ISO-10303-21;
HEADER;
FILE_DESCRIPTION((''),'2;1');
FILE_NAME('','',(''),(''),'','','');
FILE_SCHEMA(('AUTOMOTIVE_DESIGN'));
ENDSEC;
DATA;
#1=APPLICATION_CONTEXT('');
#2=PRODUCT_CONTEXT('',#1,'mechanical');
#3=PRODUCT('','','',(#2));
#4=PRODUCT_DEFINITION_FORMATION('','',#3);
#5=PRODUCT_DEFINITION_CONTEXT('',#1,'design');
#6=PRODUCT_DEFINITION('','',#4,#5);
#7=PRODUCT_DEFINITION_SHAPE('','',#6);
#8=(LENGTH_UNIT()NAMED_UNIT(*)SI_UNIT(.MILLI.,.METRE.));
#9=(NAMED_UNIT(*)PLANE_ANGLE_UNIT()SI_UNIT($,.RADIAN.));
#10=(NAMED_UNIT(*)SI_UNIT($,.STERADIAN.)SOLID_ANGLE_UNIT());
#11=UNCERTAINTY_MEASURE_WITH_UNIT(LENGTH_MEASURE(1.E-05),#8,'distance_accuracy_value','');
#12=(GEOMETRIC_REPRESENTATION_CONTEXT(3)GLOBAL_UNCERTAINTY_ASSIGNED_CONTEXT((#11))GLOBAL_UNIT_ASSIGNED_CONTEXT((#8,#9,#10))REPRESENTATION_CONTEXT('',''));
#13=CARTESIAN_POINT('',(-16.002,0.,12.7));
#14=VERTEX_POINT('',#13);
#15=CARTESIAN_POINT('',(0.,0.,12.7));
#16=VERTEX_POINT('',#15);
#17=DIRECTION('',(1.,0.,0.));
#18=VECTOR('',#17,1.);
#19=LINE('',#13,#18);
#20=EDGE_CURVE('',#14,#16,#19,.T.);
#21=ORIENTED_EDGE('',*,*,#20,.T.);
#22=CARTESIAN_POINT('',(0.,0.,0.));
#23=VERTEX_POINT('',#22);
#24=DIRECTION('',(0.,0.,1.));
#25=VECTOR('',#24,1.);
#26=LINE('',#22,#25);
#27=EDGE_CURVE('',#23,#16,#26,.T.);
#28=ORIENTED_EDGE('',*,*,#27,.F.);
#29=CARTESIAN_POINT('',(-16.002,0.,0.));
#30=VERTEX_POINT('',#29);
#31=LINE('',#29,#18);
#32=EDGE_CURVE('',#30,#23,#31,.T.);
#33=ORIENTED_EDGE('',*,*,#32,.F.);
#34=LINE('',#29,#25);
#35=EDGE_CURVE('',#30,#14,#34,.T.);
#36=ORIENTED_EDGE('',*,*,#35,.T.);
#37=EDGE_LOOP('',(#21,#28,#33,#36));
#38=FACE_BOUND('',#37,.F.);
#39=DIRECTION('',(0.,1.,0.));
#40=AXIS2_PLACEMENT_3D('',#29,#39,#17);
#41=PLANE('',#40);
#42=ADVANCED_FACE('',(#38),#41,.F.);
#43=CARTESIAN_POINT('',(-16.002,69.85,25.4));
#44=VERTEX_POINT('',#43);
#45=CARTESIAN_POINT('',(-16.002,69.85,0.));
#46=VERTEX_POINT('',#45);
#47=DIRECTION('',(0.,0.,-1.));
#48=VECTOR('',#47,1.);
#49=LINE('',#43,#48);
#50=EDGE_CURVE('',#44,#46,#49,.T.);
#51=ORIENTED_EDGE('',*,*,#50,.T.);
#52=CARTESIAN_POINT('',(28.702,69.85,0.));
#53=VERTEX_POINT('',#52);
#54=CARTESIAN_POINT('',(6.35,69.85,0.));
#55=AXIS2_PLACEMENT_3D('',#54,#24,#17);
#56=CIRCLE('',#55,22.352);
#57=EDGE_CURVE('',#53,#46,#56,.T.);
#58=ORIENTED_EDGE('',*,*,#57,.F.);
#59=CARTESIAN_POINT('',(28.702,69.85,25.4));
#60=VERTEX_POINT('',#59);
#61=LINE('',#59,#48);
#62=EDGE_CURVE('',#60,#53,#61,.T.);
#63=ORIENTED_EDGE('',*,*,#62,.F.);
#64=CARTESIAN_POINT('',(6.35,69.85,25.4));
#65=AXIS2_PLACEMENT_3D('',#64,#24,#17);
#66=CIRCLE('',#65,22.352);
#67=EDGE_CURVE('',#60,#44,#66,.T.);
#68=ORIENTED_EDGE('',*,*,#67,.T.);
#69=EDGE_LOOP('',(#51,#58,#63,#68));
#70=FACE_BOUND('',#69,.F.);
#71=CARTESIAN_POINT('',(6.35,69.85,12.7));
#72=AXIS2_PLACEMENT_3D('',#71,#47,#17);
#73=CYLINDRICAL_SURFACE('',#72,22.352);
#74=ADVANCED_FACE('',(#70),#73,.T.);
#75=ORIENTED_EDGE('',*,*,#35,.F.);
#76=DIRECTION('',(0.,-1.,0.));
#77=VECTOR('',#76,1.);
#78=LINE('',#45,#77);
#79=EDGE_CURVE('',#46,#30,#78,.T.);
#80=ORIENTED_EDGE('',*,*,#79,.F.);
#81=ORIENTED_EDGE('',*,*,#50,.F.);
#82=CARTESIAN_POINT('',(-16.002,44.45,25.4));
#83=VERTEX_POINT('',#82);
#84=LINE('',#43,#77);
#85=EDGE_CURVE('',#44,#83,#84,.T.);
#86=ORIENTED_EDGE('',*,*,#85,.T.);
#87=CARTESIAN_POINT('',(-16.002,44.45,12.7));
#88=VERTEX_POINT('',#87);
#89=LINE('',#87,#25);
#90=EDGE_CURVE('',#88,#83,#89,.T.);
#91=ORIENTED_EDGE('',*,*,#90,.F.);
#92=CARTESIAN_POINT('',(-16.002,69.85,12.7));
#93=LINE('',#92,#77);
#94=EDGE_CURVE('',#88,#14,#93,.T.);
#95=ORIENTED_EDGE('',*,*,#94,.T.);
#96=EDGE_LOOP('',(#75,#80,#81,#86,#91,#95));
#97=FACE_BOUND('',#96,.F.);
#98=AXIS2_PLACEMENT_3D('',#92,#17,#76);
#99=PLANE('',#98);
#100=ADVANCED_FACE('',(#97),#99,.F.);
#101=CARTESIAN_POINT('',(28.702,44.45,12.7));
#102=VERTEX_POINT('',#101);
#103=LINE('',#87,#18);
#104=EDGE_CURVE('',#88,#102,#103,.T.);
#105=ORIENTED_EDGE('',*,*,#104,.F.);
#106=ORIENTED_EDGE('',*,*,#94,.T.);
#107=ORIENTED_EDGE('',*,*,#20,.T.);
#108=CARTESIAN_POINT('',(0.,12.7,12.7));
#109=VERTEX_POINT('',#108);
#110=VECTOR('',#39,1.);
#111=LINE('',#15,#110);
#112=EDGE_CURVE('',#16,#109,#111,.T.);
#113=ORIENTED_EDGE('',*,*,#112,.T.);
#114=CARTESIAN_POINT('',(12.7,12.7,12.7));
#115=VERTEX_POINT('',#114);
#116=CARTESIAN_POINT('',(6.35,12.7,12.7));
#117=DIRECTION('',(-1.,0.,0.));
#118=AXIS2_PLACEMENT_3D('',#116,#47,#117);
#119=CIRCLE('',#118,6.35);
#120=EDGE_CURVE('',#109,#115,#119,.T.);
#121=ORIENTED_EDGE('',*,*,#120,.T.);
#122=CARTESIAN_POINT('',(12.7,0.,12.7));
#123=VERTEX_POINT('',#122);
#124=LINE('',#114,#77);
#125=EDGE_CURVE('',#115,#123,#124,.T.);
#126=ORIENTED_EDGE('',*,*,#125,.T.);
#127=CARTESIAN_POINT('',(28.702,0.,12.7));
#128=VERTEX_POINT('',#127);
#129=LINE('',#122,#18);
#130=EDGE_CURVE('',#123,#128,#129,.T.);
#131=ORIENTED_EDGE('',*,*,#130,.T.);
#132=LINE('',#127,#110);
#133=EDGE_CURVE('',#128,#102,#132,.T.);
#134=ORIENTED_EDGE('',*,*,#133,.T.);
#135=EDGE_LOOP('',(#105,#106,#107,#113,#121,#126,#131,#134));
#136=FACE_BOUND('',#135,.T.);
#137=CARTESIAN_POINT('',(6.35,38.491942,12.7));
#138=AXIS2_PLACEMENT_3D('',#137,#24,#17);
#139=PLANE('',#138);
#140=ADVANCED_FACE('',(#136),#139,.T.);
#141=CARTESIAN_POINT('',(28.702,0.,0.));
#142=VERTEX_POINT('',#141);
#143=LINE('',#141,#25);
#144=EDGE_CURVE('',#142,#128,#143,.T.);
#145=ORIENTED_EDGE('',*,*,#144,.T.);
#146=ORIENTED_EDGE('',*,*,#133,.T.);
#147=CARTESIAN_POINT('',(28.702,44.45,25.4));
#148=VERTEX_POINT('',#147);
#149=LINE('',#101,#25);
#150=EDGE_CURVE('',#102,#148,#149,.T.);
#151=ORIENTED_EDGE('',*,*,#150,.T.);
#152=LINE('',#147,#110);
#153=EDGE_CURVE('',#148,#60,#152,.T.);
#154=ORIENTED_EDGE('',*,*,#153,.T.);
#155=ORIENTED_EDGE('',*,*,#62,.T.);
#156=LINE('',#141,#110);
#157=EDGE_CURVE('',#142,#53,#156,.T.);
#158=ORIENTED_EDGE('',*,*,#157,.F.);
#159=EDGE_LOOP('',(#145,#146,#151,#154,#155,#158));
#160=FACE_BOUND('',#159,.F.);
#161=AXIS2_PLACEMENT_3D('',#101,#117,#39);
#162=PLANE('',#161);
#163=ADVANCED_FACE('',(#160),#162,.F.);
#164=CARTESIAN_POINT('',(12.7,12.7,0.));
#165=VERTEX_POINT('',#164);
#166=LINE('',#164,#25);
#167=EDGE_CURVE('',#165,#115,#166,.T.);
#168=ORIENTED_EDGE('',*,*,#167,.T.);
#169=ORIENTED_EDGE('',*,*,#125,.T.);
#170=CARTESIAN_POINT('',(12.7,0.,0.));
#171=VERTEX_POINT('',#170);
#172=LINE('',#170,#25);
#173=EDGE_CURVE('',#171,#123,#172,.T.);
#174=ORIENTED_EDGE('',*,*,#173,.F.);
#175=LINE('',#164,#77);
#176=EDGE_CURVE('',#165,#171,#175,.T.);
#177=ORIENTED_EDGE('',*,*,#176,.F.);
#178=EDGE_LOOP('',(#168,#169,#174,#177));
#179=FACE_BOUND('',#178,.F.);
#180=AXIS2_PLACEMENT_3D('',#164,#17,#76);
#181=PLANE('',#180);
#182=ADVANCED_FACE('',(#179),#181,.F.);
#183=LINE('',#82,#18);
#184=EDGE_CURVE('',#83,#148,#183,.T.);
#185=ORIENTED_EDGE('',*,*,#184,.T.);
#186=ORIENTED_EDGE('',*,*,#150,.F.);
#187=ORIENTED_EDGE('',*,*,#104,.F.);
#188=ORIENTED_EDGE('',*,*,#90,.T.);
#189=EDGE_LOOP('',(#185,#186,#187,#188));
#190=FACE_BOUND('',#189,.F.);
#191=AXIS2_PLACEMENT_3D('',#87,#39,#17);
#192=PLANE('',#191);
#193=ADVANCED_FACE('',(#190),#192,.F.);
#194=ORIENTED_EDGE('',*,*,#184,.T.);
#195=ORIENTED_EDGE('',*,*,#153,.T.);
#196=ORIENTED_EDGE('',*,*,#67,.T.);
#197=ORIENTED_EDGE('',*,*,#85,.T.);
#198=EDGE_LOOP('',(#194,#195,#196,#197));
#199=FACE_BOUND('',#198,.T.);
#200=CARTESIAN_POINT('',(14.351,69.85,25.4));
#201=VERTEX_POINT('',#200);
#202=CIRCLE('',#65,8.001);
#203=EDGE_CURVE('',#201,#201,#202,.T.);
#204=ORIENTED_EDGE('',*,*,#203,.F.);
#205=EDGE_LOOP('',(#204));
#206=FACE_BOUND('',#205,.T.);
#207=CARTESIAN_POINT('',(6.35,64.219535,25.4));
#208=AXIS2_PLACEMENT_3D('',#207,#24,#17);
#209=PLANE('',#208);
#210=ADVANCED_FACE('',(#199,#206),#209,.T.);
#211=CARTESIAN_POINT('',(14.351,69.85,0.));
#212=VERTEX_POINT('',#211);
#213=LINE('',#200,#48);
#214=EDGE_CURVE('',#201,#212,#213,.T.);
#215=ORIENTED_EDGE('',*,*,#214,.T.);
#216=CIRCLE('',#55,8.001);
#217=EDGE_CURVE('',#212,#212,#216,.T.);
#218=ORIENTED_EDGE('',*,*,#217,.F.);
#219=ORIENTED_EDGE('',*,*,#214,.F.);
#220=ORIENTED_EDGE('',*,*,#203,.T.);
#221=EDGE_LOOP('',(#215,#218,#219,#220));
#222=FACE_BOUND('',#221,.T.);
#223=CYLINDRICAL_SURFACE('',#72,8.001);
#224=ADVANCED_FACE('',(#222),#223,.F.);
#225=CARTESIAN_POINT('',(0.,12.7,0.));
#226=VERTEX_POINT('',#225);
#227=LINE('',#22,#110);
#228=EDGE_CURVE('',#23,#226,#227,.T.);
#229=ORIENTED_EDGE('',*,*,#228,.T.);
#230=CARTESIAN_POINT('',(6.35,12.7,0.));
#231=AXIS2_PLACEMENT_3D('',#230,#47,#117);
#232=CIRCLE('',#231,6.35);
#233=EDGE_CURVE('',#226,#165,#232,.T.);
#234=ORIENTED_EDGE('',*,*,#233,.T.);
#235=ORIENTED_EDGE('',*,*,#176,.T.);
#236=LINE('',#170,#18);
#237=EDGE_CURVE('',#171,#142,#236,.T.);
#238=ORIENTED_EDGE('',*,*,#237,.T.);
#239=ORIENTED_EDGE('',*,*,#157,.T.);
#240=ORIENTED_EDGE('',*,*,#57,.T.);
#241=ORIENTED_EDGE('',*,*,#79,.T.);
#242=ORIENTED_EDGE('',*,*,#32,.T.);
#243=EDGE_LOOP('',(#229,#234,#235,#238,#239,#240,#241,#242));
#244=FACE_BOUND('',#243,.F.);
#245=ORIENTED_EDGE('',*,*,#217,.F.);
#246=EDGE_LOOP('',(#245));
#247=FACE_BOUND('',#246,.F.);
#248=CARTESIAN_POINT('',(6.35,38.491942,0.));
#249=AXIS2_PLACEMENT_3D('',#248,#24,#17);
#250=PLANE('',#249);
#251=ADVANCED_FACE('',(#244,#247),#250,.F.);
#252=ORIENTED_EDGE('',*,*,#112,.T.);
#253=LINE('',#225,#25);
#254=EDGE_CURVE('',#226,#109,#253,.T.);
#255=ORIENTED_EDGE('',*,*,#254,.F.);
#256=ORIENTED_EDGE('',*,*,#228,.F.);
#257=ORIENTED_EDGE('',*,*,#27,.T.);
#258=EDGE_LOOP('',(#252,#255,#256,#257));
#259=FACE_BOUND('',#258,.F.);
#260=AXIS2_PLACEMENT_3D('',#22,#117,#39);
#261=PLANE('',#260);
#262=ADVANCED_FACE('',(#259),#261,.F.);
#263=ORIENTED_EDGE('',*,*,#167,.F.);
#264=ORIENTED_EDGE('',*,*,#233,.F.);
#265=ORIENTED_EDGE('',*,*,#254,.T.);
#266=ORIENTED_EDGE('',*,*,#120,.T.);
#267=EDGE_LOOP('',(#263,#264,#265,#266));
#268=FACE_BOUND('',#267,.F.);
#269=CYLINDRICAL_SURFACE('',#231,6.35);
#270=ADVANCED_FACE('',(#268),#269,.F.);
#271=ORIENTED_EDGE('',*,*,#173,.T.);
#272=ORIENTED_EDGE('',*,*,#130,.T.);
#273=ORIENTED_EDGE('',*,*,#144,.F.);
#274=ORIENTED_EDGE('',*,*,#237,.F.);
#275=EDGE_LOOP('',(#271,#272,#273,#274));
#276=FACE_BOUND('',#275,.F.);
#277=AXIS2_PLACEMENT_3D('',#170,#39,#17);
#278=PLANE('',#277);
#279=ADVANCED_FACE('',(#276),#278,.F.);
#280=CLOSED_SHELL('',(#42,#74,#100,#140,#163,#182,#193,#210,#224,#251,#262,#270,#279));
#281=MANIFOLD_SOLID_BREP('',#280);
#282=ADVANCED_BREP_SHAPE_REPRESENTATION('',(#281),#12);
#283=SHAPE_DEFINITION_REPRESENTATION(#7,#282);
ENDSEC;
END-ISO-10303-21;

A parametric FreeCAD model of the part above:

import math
import FreeCAD as App
import Part
import Sketcher
Q = App.Units.Quantity

doc = App.newDocument("Part")
body = doc.addObject("PartDesign::Body", "Body")

sketch1 = doc.addObject("Sketcher::SketchObject", "Sketch")
body.addObject(sketch1)
sketch1.AttachmentSupport = (doc.XY_Plane, [""])
sketch1.MapMode = "FlatFace"
sketch1.addGeometry([
    Part.LineSegment(App.Vector(-16, 0, 0), App.Vector(0, 0, 0)),
    Part.LineSegment(App.Vector(0, 0, 0), App.Vector(0, 13, 0)),
    Part.ArcOfCircle(Part.Circle(App.Vector(6, 13, 0), App.Vector(0, 0, 1), 6), math.radians(0), math.radians(180)),
    Part.LineSegment(App.Vector(13, 13, 0), App.Vector(13, 0, 0)),
    Part.LineSegment(App.Vector(13, 0, 0), App.Vector(29, 0, 0)),
    Part.LineSegment(App.Vector(29, 0, 0), App.Vector(29, 70, 0)),
    Part.ArcOfCircle(Part.Circle(App.Vector(6, 70, 0), App.Vector(0, 0, 1), 22), math.radians(0), math.radians(180)),
    Part.LineSegment(App.Vector(-16, 70, 0), App.Vector(-16, 0, 0)),
    Part.Circle(App.Vector(6, 70, 0), App.Vector(0, 0, 1), 8),
], False)
sketch1.addConstraint([
    Sketcher.Constraint("Coincident", 0, 2, 1, 1),
    Sketcher.Constraint("Tangent", 1, 2, 2, 2),
    Sketcher.Constraint("Tangent", 2, 1, 3, 1),
    Sketcher.Constraint("Coincident", 3, 2, 4, 1),
    Sketcher.Constraint("Coincident", 4, 2, 5, 1),
    Sketcher.Constraint("Tangent", 5, 2, 6, 1),
    Sketcher.Constraint("Tangent", 6, 2, 7, 1),
    Sketcher.Constraint("Coincident", 7, 2, 0, 1),
    Sketcher.Constraint("Horizontal", 0),
    Sketcher.Constraint("Vertical", 1),
    Sketcher.Constraint("Vertical", 3),
    Sketcher.Constraint("Horizontal", 4),
    Sketcher.Constraint("Vertical", 5),
    Sketcher.Constraint("Vertical", 7),
    Sketcher.Constraint("Coincident", 0, 2, -1, 1),
    Sketcher.Constraint("Coincident", 8, 3, 6, 3),
    Sketcher.Constraint("PointOnObject", 3, 2, -1),
    Sketcher.Constraint("Vertical", 2, 3, 6, 3),
    Sketcher.Constraint("Diameter", 8, Q("0.63 in")),
    Sketcher.Constraint("Radius", 2, Q("0.25 in")),
    Sketcher.Constraint("Radius", 6, Q("0.88 in")),
    Sketcher.Constraint("DistanceY", 1, 1, 1, 2, Q("0.5 in")),
    Sketcher.Constraint("DistanceY", 5, 1, 5, 2, Q("2.75 in")),
])
pad1 = doc.addObject("PartDesign::Pad", "Pad")
body.addObject(pad1)
pad1.Profile = sketch1
pad1.Length = Q("0.5 in")

sketch2 = doc.addObject("Sketcher::SketchObject", "Sketch001")
body.addObject(sketch2)
sketch2.AttachmentSupport = (doc.XY_Plane, [""])
sketch2.MapMode = "FlatFace"
sketch2.AttachmentOffset = App.Placement(App.Vector(0, 0, 0.5 * 25.4), App.Rotation())
sketch2.addGeometry([
    Part.LineSegment(App.Vector(-16, 70, 0), App.Vector(-16, 44, 0)),
    Part.LineSegment(App.Vector(-16, 44, 0), App.Vector(29, 44, 0)),
    Part.LineSegment(App.Vector(29, 44, 0), App.Vector(29, 70, 0)),
    Part.ArcOfCircle(Part.Circle(App.Vector(6, 70, 0), App.Vector(0, 0, 1), 22), math.radians(0), math.radians(180)),
    Part.Circle(App.Vector(6, 70, 0), App.Vector(0, 0, 1), 8),
], False)
sketch2.addConstraint([
    Sketcher.Constraint("Coincident", 0, 2, 1, 1),
    Sketcher.Constraint("Coincident", 1, 2, 2, 1),
    Sketcher.Constraint("Tangent", 2, 2, 3, 1),
    Sketcher.Constraint("Tangent", 3, 2, 0, 1),
    Sketcher.Constraint("Vertical", 0),
    Sketcher.Constraint("Horizontal", 1),
    Sketcher.Constraint("Vertical", 2),
    Sketcher.Constraint("Coincident", 4, 3, 3, 3),
    Sketcher.Constraint("Diameter", 4, Q("0.63 in")),
    Sketcher.Constraint("DistanceY", 0, 2, 0, 1, Q("1 in")),
    Sketcher.Constraint("Radius", 3, Q("0.88 in")),
    Sketcher.Constraint("DistanceX", -1, 1, 3, 3, Q("0.25 in")),
    Sketcher.Constraint("DistanceY", -1, 1, 3, 3, Q("2.75 in")),
])
pad2 = doc.addObject("PartDesign::Pad", "Pad001")
body.addObject(pad2)
pad2.Profile = sketch2
pad2.Length = Q("0.5 in")

doc.recompute()
